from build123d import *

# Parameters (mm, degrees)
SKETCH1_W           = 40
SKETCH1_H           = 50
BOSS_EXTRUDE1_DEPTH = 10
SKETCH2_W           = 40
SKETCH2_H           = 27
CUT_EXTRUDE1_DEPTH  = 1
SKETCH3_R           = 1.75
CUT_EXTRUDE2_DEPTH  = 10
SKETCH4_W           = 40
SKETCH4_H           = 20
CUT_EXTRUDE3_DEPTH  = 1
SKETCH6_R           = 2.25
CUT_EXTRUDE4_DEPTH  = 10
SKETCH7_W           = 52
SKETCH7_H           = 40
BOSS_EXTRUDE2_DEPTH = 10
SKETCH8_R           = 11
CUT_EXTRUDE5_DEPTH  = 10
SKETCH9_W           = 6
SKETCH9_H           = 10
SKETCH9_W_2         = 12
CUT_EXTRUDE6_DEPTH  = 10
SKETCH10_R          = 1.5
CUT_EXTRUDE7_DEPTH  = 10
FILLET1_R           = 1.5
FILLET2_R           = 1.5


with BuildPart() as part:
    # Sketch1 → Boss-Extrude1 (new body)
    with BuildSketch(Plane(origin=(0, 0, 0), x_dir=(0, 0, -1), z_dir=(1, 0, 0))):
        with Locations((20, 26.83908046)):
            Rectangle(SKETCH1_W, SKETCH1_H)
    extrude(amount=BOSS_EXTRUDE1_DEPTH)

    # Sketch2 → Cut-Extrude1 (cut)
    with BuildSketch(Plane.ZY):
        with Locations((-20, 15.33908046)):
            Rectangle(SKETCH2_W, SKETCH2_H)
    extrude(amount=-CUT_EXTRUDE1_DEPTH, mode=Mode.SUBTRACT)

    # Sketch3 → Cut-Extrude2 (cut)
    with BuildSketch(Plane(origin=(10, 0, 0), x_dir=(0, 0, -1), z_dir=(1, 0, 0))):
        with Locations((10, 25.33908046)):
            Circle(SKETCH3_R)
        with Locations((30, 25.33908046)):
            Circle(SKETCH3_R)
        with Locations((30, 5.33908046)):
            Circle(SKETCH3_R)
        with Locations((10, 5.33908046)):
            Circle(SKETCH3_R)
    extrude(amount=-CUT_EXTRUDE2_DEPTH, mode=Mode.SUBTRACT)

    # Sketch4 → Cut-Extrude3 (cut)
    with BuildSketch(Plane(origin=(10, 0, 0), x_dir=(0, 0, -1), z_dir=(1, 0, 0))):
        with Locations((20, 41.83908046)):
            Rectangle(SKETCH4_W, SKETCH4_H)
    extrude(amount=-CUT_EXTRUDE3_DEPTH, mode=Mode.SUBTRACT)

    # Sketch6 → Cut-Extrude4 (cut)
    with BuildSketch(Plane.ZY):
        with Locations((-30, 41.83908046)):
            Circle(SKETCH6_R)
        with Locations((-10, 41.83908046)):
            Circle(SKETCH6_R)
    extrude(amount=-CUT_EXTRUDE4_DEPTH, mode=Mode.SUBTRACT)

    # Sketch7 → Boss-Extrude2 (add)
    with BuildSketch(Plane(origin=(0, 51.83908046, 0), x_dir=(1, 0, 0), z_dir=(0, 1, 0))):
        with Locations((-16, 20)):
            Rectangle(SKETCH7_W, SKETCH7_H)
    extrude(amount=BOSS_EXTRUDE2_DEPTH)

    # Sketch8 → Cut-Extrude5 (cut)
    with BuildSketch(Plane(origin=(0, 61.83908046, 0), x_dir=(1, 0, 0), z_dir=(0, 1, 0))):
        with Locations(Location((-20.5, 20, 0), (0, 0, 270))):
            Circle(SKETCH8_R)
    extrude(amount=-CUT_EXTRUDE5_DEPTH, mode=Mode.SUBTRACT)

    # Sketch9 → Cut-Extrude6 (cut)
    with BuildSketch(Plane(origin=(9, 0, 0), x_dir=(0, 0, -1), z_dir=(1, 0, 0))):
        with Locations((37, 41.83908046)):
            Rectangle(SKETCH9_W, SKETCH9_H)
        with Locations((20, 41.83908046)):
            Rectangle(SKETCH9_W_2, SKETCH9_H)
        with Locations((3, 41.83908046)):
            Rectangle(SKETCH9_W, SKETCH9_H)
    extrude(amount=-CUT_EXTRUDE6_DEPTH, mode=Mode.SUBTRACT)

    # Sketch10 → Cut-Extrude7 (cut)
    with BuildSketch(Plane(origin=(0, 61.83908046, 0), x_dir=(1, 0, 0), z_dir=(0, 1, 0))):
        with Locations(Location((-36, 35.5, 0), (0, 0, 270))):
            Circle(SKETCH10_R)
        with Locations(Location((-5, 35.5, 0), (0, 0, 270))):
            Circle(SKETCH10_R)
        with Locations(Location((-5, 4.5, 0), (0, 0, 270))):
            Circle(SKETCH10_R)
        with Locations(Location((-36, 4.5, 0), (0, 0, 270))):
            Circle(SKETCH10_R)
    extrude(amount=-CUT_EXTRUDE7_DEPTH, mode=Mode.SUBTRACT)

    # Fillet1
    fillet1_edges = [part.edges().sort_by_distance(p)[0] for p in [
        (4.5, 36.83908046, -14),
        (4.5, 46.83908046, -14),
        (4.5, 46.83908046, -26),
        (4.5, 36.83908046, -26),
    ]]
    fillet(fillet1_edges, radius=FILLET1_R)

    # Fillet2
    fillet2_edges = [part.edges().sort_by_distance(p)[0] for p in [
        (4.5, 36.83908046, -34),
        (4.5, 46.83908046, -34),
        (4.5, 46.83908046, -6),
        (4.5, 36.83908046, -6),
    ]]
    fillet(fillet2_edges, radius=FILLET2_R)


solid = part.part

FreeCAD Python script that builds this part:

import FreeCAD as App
import Part
import Sketcher
from FreeCAD import Vector


def edges_at(feature, points):
    """Names of the edges that pass closest to the given points."""
    edges = feature.Shape.Edges
    near = lambda p: min(range(len(edges)), key=lambda i: edges[i].distToShape(Part.Vertex(*p))[0])
    return sorted({f"Edge{near(p) + 1}" for p in points})

doc = App.newDocument("Part")
body = doc.addObject("PartDesign::Body", "Body")

# Sketch on YZ plane
sketch1 = body.newObject("Sketcher::SketchObject", "Sketch")
sketch1.AttachmentSupport = (doc.getObject("YZ_Plane"), [""])
sketch1.MapMode = "FlatFace"
sketch1.addGeometry(Part.LineSegment(Vector(52, 0, 0), Vector(2, 0, 0)), False)
sketch1.addGeometry(Part.LineSegment(Vector(2, 0, 0), Vector(2, -40, 0)), False)
sketch1.addGeometry(Part.LineSegment(Vector(2, -40, 0), Vector(52, -40, 0)), False)
sketch1.addGeometry(Part.LineSegment(Vector(52, -40, 0), Vector(52, 0, 0)), False)
sketch1.addConstraint(Sketcher.Constraint("Coincident", 0, 2, 1, 1))
sketch1.addConstraint(Sketcher.Constraint("Coincident", 1, 2, 2, 1))
sketch1.addConstraint(Sketcher.Constraint("Coincident", 2, 2, 3, 1))
sketch1.addConstraint(Sketcher.Constraint("Coincident", 3, 2, 0, 1))
sketch1.addConstraint(Sketcher.Constraint("Horizontal", 0))
sketch1.addConstraint(Sketcher.Constraint("Vertical", 1))
sketch1.addConstraint(Sketcher.Constraint("Horizontal", 2))
sketch1.addConstraint(Sketcher.Constraint("Vertical", 3))
sketch1.addConstraint(Sketcher.Constraint("PointOnObject", 0, 2, -1))
sketch1.addConstraint(Sketcher.Constraint("DistanceX", 0, 2, 0, 1, 50.0))
sketch1.addConstraint(Sketcher.Constraint("DistanceY", 1, 2, 1, 1, 40.0))
sketch1.addConstraint(Sketcher.Constraint("DistanceX", -1, 1, 0, 2, 1.83908))
pad1 = body.newObject("PartDesign::Pad", "Pad")
pad1.Profile = sketch1
pad1.Length = 10

# Sketch on YZ plane
sketch2 = body.newObject("Sketcher::SketchObject", "Sketch001")
sketch2.AttachmentSupport = (doc.getObject("YZ_Plane"), [""])
sketch2.MapMode = "FlatFace"
sketch2.addGeometry(Part.LineSegment(Vector(29, -40, 0), Vector(2, -40, 0)), False)
sketch2.addGeometry(Part.LineSegment(Vector(2, -40, 0), Vector(2, 0, 0)), False)
sketch2.addGeometry(Part.LineSegment(Vector(2, 0, 0), Vector(29, 0, 0)), False)
sketch2.addGeometry(Part.LineSegment(Vector(29, 0, 0), Vector(29, -40, 0)), False)
sketch2.addConstraint(Sketcher.Constraint("Coincident", 0, 2, 1, 1))
sketch2.addConstraint(Sketcher.Constraint("Coincident", 1, 2, 2, 1))
sketch2.addConstraint(Sketcher.Constraint("Coincident", 2, 2, 3, 1))
sketch2.addConstraint(Sketcher.Constraint("Coincident", 3, 2, 0, 1))
sketch2.addConstraint(Sketcher.Constraint("Horizontal", 0))
sketch2.addConstraint(Sketcher.Constraint("Vertical", 1))
sketch2.addConstraint(Sketcher.Constraint("Horizontal", 2))
sketch2.addConstraint(Sketcher.Constraint("Vertical", 3))
sketch2.addConstraint(Sketcher.Constraint("PointOnObject", 1, 2, -1))
sketch2.addConstraint(Sketcher.Constraint("DistanceX", 0, 2, 0, 1, 27.0))
sketch2.addConstraint(Sketcher.Constraint("DistanceY", 1, 1, 1, 2, 40.0))
sketch2.addConstraint(Sketcher.Constraint("DistanceX", -1, 1, 0, 2, 1.83908))
pocket1 = body.newObject("PartDesign::Pocket", "Pocket")
pocket1.Profile = sketch2
pocket1.Length = 1
pocket1.Reversed = True

# Sketch on YZ plane
sketch3 = body.newObject("Sketcher::SketchObject", "Sketch002")
sketch3.AttachmentSupport = (doc.getObject("YZ_Plane"), [""])
sketch3.MapMode = "FlatFace"
sketch3.AttachmentOffset = App.Placement(Vector(0, 0, 10), App.Rotation())
sketch3.addGeometry(Part.Circle(Vector(25.3, -10, 0), Vector(0, 0, 1), 1.8), False)
sketch3.addGeometry(Part.Circle(Vector(25.3, -30, 0), Vector(0, 0, 1), 1.8), False)
sketch3.addGeometry(Part.Circle(Vector(5.3, -30, 0), Vector(0, 0, 1), 1.8), False)
sketch3.addGeometry(Part.Circle(Vector(5.3, -10, 0), Vector(0, 0, 1), 1.8), False)
sketch3.addConstraint(Sketcher.Constraint("Equal", 0, 1))
sketch3.addConstraint(Sketcher.Constraint("Equal", 1, 2))
sketch3.addConstraint(Sketcher.Constraint("Equal", 2, 3))
sketch3.addConstraint(Sketcher.Constraint("Horizontal", 1, 3, 2, 3))
sketch3.addConstraint(Sketcher.Constraint("Horizontal", 0, 3, 3, 3))
sketch3.addConstraint(Sketcher.Constraint("Vertical", 0, 3, 1, 3))
sketch3.addConstraint(Sketcher.Constraint("Vertical", 2, 3, 3, 3))
sketch3.addConstraint(Sketcher.Constraint("Diameter", 0, 3.5))
sketch3.addConstraint(Sketcher.Constraint("DistanceY", 0, 3, -1, 1, 10.0))
sketch3.addConstraint(Sketcher.Constraint("DistanceY", 1, 3, -1, 1, 30.0))
sketch3.addConstraint(Sketcher.Constraint("DistanceX", 2, 3, 1, 3, 20.0))
sketch3.addConstraint(Sketcher.Constraint("DistanceX", -1, 1, 0, 3, 25.33908))
pocket2 = body.newObject("PartDesign::Pocket", "Pocket001")
pocket2.Profile = sketch3
pocket2.Length = 10

# Sketch on YZ plane
sketch4 = body.newObject("Sketcher::SketchObject", "Sketch003")
sketch4.AttachmentSupport = (doc.getObject("YZ_Plane"), [""])
sketch4.MapMode = "FlatFace"
sketch4.AttachmentOffset = App.Placement(Vector(0, 0, 10), App.Rotation())
sketch4.addGeometry(Part.LineSegment(Vector(52, 0, 0), Vector(32, 0, 0)), False)
sketch4.addGeometry(Part.LineSegment(Vector(32, 0, 0), Vector(32, -40, 0)), False)
sketch4.addGeometry(Part.LineSegment(Vector(32, -40, 0), Vector(52, -40, 0)), False)
sketch4.addGeometry(Part.LineSegment(Vector(52, -40, 0), Vector(52, 0, 0)), False)
sketch4.addConstraint(Sketcher.Constraint("Coincident", 0, 2, 1, 1))
sketch4.addConstraint(Sketcher.Constraint("Coincident", 1, 2, 2, 1))
sketch4.addConstraint(Sketcher.Constraint("Coincident", 2, 2, 3, 1))
sketch4.addConstraint(Sketcher.Constraint("Coincident", 3, 2, 0, 1))
sketch4.addConstraint(Sketcher.Constraint("Horizontal", 0))
sketch4.addConstraint(Sketcher.Constraint("Vertical", 1))
sketch4.addConstraint(Sketcher.Constraint("Horizontal", 2))
sketch4.addConstraint(Sketcher.Constraint("Vertical", 3))
sketch4.addConstraint(Sketcher.Constraint("PointOnObject", 0, 2, -1))
sketch4.addConstraint(Sketcher.Constraint("DistanceX", 0, 2, 0, 1, 20.0))
sketch4.addConstraint(Sketcher.Constraint("DistanceY", 1, 2, 1, 1, 40.0))
sketch4.addConstraint(Sketcher.Constraint("DistanceX", -1, 1, 0, 2, 31.83908))
pocket3 = body.newObject("PartDesign::Pocket", "Pocket002")
pocket3.Profile = sketch4
pocket3.Length = 1

# Sketch on YZ plane
sketch5 = body.newObject("Sketcher::SketchObject", "Sketch004")
sketch5.AttachmentSupport = (doc.getObject("YZ_Plane"), [""])
sketch5.MapMode = "FlatFace"
sketch5.addGeometry(Part.Circle(Vector(41.8, -30, 0), Vector(0, 0, 1), 2.2), False)
sketch5.addGeometry(Part.Circle(Vector(41.8, -10, 0), Vector(0, 0, 1), 2.2), False)
sketch5.addConstraint(Sketcher.Constraint("Equal", 0, 1))
sketch5.addConstraint(Sketcher.Constraint("Vertical", 0, 3, 1, 3))
sketch5.addConstraint(Sketcher.Constraint("Diameter", 0, 4.5))
sketch5.addConstraint(Sketcher.Constraint("DistanceY", 0, 3, -1, 1, 30.0))
sketch5.addConstraint(Sketcher.Constraint("DistanceY", 1, 3, -1, 1, 10.0))
sketch5.addConstraint(Sketcher.Constraint("DistanceX", -1, 1, 0, 3, 41.83908))
pocket4 = body.newObject("PartDesign::Pocket", "Pocket003")
pocket4.Profile = sketch5
pocket4.Length = 10
pocket4.Reversed = True

# Sketch on XZ plane
sketch6 = body.newObject("Sketcher::SketchObject", "Sketch005")
sketch6.AttachmentSupport = (doc.getObject("XZ_Plane"), [""])
sketch6.MapMode = "FlatFace"
sketch6.AttachmentOffset = App.Placement(Vector(0, 0, -51.83908), App.Rotation())
sketch6.addGeometry(Part.LineSegment(Vector(-42, -40, 0), Vector(-42, 0, 0)), False)
sketch6.addGeometry(Part.LineSegment(Vector(-42, 0, 0), Vector(10, 0, 0)), False)
sketch6.addGeometry(Part.LineSegment(Vector(10, 0, 0), Vector(10, -40, 0)), False)
sketch6.addGeometry(Part.LineSegment(Vector(10, -40, 0), Vector(-42, -40, 0)), False)
sketch6.addConstraint(Sketcher.Constraint("Coincident", 0, 2, 1, 1))
sketch6.addConstraint(Sketcher.Constraint("Coincident", 1, 2, 2, 1))
sketch6.addConstraint(Sketcher.Constraint("Coincident", 2, 2, 3, 1))
sketch6.addConstraint(Sketcher.Constraint("Coincident", 3, 2, 0, 1))
sketch6.addConstraint(Sketcher.Constraint("Vertical", 0))
sketch6.addConstraint(Sketcher.Constraint("Horizontal", 1))
sketch6.addConstraint(Sketcher.Constraint("Vertical", 2))
sketch6.addConstraint(Sketcher.Constraint("Horizontal", 3))
sketch6.addConstraint(Sketcher.Constraint("PointOnObject", 0, 2, -1))
sketch6.addConstraint(Sketcher.Constraint("DistanceX", 1, 1, 1, 2, 52.0))
sketch6.addConstraint(Sketcher.Constraint("DistanceY", 0, 1, 0, 2, 40.0))
sketch6.addConstraint(Sketcher.Constraint("DistanceX", 0, 2, -1, 1, 42.0))
pad2 = body.newObject("PartDesign::Pad", "Pad001")
pad2.Profile = sketch6
pad2.Length = 10
pad2.Reversed = True

# Sketch on XZ plane
sketch7 = body.newObject("Sketcher::SketchObject", "Sketch006")
sketch7.AttachmentSupport = (doc.getObject("XZ_Plane"), [""])
sketch7.MapMode = "FlatFace"
sketch7.AttachmentOffset = App.Placement(Vector(0, 0, -61.83908), App.Rotation())
sketch7.addGeometry(Part.Circle(Vector(-20, -20, 0), Vector(0, 0, 1), 11), False)
sketch7.addConstraint(Sketcher.Constraint("Diameter", 0, 22.0))
sketch7.addConstraint(Sketcher.Constraint("DistanceY", 0, 3, -1, 1, 20.0))
sketch7.addConstraint(Sketcher.Constraint("DistanceX", 0, 3, -1, 1, 20.5))
pocket5 = body.newObject("PartDesign::Pocket", "Pocket004")
pocket5.Profile = sketch7
pocket5.Length = 10
pocket5.Reversed = True

# Sketch on YZ plane
sketch8 = body.newObject("Sketcher::SketchObject", "Sketch007")
sketch8.AttachmentSupport = (doc.getObject("YZ_Plane"), [""])
sketch8.MapMode = "FlatFace"
sketch8.AttachmentOffset = App.Placement(Vector(0, 0, 9), App.Rotation())
sketch8.addGeometry(Part.LineSegment(Vector(47, -34, 0), Vector(37, -34, 0)), False)
sketch8.addGeometry(Part.LineSegment(Vector(37, -34, 0), Vector(37, -40, 0)), False)
sketch8.addGeometry(Part.LineSegment(Vector(37, -40, 0), Vector(47, -40, 0)), False)
sketch8.addGeometry(Part.LineSegment(Vector(47, -40, 0), Vector(47, -34, 0)), False)
sketch8.addGeometry(Part.LineSegment(Vector(47, -14, 0), Vector(37, -14, 0)), False)
sketch8.addGeometry(Part.LineSegment(Vector(37, -14, 0), Vector(37, -26, 0)), False)
sketch8.addGeometry(Part.LineSegment(Vector(37, -26, 0), Vector(47, -26, 0)), False)
sketch8.addGeometry(Part.LineSegment(Vector(47, -26, 0), Vector(47, -14, 0)), False)
sketch8.addGeometry(Part.LineSegment(Vector(47, 0, 0), Vector(37, 0, 0)), False)
sketch8.addGeometry(Part.LineSegment(Vector(37, 0, 0), Vector(37, -6, 0)), False)
sketch8.addGeometry(Part.LineSegment(Vector(37, -6, 0), Vector(47, -6, 0)), False)
sketch8.addGeometry(Part.LineSegment(Vector(47, -6, 0), Vector(47, 0, 0)), False)
sketch8.addConstraint(Sketcher.Constraint("Coincident", 0, 2, 1, 1))
sketch8.addConstraint(Sketcher.Constraint("Coincident", 1, 2, 2, 1))
sketch8.addConstraint(Sketcher.Constraint("Coincident", 2, 2, 3, 1))
sketch8.addConstraint(Sketcher.Constraint("Coincident", 3, 2, 0, 1))
sketch8.addConstraint(Sketcher.Constraint("Coincident", 4, 2, 5, 1))
sketch8.addConstraint(Sketcher.Constraint("Coincident", 5, 2, 6, 1))
sketch8.addConstraint(Sketcher.Constraint("Coincident", 6, 2, 7, 1))
sketch8.addConstraint(Sketcher.Constraint("Coincident", 7, 2, 4, 1))
sketch8.addConstraint(Sketcher.Constraint("Coincident", 8, 2, 9, 1))
sketch8.addConstraint(Sketcher.Constraint("Coincident", 9, 2, 10, 1))
sketch8.addConstraint(Sketcher.Constraint("Coincident", 10, 2, 11, 1))
sketch8.addConstraint(Sketcher.Constraint("Coincident", 11, 2, 8, 1))
sketch8.addConstraint(Sketcher.Constraint("Horizontal", 0))
sketch8.addConstraint(Sketcher.Constraint("Vertical", 1))
sketch8.addConstraint(Sketcher.Constraint("Horizontal", 2))
sketch8.addConstraint(Sketcher.Constraint("Vertical", 3))
sketch8.addConstraint(Sketcher.Constraint("Horizontal", 4))
sketch8.addConstraint(Sketcher.Constraint("Vertical", 5))
sketch8.addConstraint(Sketcher.Constraint("Horizontal", 6))
sketch8.addConstraint(Sketcher.Constraint("Vertical", 7))
sketch8.addConstraint(Sketcher.Constraint("Horizontal", 8))
sketch8.addConstraint(Sketcher.Constraint("Vertical", 9))
sketch8.addConstraint(Sketcher.Constraint("Horizontal", 10))
sketch8.addConstraint(Sketcher.Constraint("Vertical", 11))
sketch8.addConstraint(Sketcher.Constraint("PointOnObject", 8, 2, -1))
sketch8.addConstraint(Sketcher.Constraint("Vertical", 1, 2, 4, 2))
sketch8.addConstraint(Sketcher.Constraint("Vertical", 3, 2, 6, 2))
sketch8.addConstraint(Sketcher.Constraint("Vertical", 5, 2, 8, 2))
sketch8.addConstraint(Sketcher.Constraint("Vertical", 7, 2, 10, 2))
sketch8.addConstraint(Sketcher.Constraint("Equal", 3, 9))
sketch8.addConstraint(Sketcher.Constraint("DistanceX", 0, 2, 0, 1, 10.0))
sketch8.addConstraint(Sketcher.Constraint("DistanceY", 1, 2, 1, 1, 6.0))
sketch8.addConstraint(Sketcher.Constraint("DistanceY", 5, 2, 5, 1, 12.0))
sketch8.addConstraint(Sketcher.Constraint("DistanceY", 0, 2, -1, 1, 34.0))
sketch8.addConstraint(Sketcher.Constraint("DistanceY", 4, 2, -1, 1, 14.0))
sketch8.addConstraint(Sketcher.Constraint("DistanceX", -1, 1, 0, 2, 36.83908))
pocket6 = body.newObject("PartDesign::Pocket", "Pocket005")
pocket6.Profile = sketch8
pocket6.Length = 10

# Sketch on XZ plane
sketch9 = body.newObject("Sketcher::SketchObject", "Sketch008")
sketch9.AttachmentSupport = (doc.getObject("XZ_Plane"), [""])
sketch9.MapMode = "FlatFace"
sketch9.AttachmentOffset = App.Placement(Vector(0, 0, -61.83908), App.Rotation())
sketch9.addGeometry(Part.Circle(Vector(-36, -35.5, 0), Vector(0, 0, 1), 1.5), False)
sketch9.addGeometry(Part.Circle(Vector(-5, -35.5, 0), Vector(0, 0, 1), 1.5), False)
sketch9.addGeometry(Part.Circle(Vector(-5, -4.5, 0), Vector(0, 0, 1), 1.5), False)
sketch9.addGeometry(Part.Circle(Vector(-36, -4.5, 0), Vector(0, 0, 1), 1.5), False)
sketch9.addConstraint(Sketcher.Constraint("Equal", 0, 1))
sketch9.addConstraint(Sketcher.Constraint("Equal", 1, 2))
sketch9.addConstraint(Sketcher.Constraint("Equal", 2, 3))
sketch9.addConstraint(Sketcher.Constraint("Horizontal", 0, 3, 1, 3))
sketch9.addConstraint(Sketcher.Constraint("Horizontal", 2, 3, 3, 3))
sketch9.addConstraint(Sketcher.Constraint("Vertical", 1, 3, 2, 3))
sketch9.addConstraint(Sketcher.Constraint("Vertical", 0, 3, 3, 3))
sketch9.addConstraint(Sketcher.Constraint("Diameter", 0, 3.0))
sketch9.addConstraint(Sketcher.Constraint("DistanceX", 0, 3, -1, 1, 36.0))
sketch9.addConstraint(Sketcher.Constraint("DistanceX", 1, 3, -1, 1, 5.0))
sketch9.addConstraint(Sketcher.Constraint("DistanceY", 1, 3, 2, 3, 31.0))
sketch9.addConstraint(Sketcher.Constraint("DistanceY", 0, 3, -1, 1, 35.5))
pocket7 = body.newObject("PartDesign::Pocket", "Pocket006")
pocket7.Profile = sketch9
pocket7.Length = 10
pocket7.Reversed = True
doc.recompute()

fillet = body.newObject("PartDesign::Fillet", "Fillet")
fillet.Base = (pocket7, edges_at(pocket7, [
    (4.5, 36.839, -14),
    (4.5, 46.839, -14),
    (4.5, 46.839, -26),
    (4.5, 36.839, -26),
]))
fillet.Radius = 1.5
doc.recompute()

fillet2 = body.newObject("PartDesign::Fillet", "Fillet001")
fillet2.Base = (fillet, edges_at(fillet, [
    (4.5, 36.839, -34),
    (4.5, 46.839, -34),
    (4.5, 46.839, -6),
    (4.5, 36.839, -6),
]))
fillet2.Radius = 1.5

doc.recompute()
